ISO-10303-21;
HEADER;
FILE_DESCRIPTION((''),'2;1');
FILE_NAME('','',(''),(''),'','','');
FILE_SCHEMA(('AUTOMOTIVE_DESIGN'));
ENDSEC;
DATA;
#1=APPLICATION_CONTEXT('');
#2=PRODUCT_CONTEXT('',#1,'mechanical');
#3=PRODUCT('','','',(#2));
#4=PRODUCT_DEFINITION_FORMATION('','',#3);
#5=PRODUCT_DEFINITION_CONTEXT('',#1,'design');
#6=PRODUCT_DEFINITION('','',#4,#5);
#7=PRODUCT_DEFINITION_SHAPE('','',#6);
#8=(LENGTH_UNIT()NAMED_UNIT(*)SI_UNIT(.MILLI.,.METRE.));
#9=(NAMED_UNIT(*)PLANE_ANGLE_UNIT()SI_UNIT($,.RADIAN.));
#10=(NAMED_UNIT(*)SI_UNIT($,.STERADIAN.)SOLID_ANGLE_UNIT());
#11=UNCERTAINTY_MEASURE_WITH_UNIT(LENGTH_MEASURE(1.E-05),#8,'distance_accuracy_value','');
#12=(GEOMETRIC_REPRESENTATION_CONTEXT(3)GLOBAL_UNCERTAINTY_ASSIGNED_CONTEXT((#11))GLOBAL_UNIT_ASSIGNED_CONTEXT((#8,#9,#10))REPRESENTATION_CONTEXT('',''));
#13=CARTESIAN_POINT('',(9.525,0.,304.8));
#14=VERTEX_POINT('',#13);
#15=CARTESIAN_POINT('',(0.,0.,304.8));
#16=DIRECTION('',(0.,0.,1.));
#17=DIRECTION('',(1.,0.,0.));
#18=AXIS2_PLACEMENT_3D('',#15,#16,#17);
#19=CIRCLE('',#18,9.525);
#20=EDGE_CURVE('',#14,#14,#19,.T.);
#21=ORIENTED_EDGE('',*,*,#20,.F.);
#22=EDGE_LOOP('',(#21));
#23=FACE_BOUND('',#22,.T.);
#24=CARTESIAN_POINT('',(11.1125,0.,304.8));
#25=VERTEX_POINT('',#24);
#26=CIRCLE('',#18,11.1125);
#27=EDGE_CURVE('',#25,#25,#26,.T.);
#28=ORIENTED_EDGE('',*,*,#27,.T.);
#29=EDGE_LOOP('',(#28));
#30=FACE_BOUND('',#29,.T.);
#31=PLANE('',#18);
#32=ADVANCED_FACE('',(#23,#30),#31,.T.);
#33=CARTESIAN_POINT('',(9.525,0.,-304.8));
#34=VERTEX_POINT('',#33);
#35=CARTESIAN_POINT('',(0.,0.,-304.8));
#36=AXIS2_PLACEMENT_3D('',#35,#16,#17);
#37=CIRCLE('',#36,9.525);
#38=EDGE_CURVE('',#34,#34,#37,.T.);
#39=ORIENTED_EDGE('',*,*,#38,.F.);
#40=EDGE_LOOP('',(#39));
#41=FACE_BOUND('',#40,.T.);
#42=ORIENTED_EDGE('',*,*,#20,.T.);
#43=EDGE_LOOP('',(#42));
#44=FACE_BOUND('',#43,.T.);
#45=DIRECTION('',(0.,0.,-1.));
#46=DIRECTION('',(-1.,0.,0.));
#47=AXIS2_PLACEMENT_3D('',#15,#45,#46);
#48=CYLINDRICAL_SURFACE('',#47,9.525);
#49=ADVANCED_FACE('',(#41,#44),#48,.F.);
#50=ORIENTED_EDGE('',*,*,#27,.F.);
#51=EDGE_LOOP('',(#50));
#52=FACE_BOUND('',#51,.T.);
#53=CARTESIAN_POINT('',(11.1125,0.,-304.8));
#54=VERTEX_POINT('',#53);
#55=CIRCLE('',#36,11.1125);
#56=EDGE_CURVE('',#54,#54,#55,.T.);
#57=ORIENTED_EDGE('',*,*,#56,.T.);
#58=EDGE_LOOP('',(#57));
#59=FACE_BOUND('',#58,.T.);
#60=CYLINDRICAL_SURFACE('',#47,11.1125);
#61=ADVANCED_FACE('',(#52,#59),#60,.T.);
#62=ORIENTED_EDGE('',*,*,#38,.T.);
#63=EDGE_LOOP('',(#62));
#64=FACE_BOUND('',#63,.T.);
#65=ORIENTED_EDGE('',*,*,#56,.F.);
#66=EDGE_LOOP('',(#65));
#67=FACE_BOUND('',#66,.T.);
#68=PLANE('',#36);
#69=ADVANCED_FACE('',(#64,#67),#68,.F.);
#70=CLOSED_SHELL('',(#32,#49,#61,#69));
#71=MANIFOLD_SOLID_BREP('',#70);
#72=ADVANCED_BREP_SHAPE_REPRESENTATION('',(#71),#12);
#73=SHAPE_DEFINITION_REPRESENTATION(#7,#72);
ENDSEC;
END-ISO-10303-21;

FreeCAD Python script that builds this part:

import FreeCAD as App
import Part
import Sketcher
from FreeCAD import Vector
Q = App.Units.Quantity

doc = App.newDocument("Part")
params = doc.addObject("Spreadsheet::Sheet", "Params")
for row, (alias, value) in enumerate([
    ("sketch1_diameter", "0.75 in"),
    ("sketch1_diameter2", "0.875 in"),
    ("pad1_length", "24 in"),
], start=1):
    params.set(f"A{row}", alias)
    params.set(f"B{row}", "=" + value)
    params.setAlias(f"B{row}", alias)

body = doc.addObject("PartDesign::Body", "Body")

# Sketch on XY plane
sketch1 = body.newObject("Sketcher::SketchObject", "Sketch")
sketch1.AttachmentSupport = (doc.getObject("XY_Plane"), [""])
sketch1.MapMode = "FlatFace"
sketch1.addGeometry(Part.Circle(Vector(0, 0, 0), Vector(0, 0, 1), 11), False)
sketch1.addGeometry(Part.Circle(Vector(0, 0, 0), Vector(0, 0, 1), 10), False)
sketch1.addConstraint(Sketcher.Constraint("Coincident", 0, 3, -1, 1))
sketch1.addConstraint(Sketcher.Constraint("Coincident", 1, 3, -1, 1))
sketch1.addConstraint(Sketcher.Constraint("Diameter", 1, Q("0.75 in")))
sketch1.addConstraint(Sketcher.Constraint("Diameter", 0, Q("0.875 in")))
sketch1.setExpression("Constraints[2]", "Params.sketch1_diameter")
sketch1.setExpression("Constraints[3]", "Params.sketch1_diameter2")
pad1 = body.newObject("PartDesign::Pad", "Pad")
pad1.Profile = sketch1
pad1.setExpression("Length", "Params.pad1_length")
pad1.Midplane = True

doc.recompute()
